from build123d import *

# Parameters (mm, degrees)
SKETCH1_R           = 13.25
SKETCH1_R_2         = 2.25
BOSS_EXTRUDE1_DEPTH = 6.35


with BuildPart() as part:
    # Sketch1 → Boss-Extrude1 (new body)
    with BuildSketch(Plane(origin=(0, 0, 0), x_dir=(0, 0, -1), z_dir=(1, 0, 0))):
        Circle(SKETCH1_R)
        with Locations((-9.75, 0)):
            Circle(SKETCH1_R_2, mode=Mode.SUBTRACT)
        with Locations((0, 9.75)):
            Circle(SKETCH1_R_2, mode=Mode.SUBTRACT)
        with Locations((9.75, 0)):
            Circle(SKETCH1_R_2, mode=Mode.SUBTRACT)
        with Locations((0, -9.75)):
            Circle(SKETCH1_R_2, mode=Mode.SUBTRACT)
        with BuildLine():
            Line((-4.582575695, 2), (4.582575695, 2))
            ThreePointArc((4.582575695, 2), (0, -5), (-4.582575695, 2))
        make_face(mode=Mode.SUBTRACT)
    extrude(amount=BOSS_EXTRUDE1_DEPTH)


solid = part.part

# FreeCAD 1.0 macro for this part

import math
import FreeCAD as App
import Part
import Sketcher
Q = App.Units.Quantity

doc = App.newDocument("Part")
body = doc.addObject("PartDesign::Body", "Body")

# Sketch on YZ plane
sketch1 = body.newObject("Sketcher::SketchObject", "Sketch")
sketch1.AttachmentSupport = (doc.getObject("YZ_Plane"), [""])
sketch1.MapMode = "FlatFace"
sketch1.addGeometry(Part.Circle(App.Vector(0, 0, 0), App.Vector(0, 0, 1), 13.2), False)
sketch1.addGeometry(Part.Circle(App.Vector(-9.8, 0, 0), App.Vector(0, 0, 1), 2.2), False)
sketch1.addGeometry(Part.ArcOfCircle(Part.Circle(App.Vector(0, 0, 0), App.Vector(0, 0, 1), 5), math.radians(66), math.radians(294)), False)
sketch1.addGeometry(Part.LineSegment(App.Vector(2, 4.6, 0), App.Vector(2, -4.6, 0)), False)
sketch1.addGeometry(Part.Circle(App.Vector(0, 9.8, 0), App.Vector(0, 0, 1), 2.2), False)
sketch1.addGeometry(Part.Circle(App.Vector(0, -9.8, 0), App.Vector(0, 0, 1), 2.2), False)
sketch1.addGeometry(Part.Circle(App.Vector(9.8, 0, 0), App.Vector(0, 0, 1), 2.2), False)
sketch1.addConstraint(Sketcher.Constraint("Coincident", 2, 1, 3, 1))
sketch1.addConstraint(Sketcher.Constraint("Coincident", 3, 2, 2, 2))
sketch1.addConstraint(Sketcher.Constraint("Vertical", 3))
sketch1.addConstraint(Sketcher.Constraint("Coincident", 0, 3, -1, 1))
sketch1.addConstraint(Sketcher.Constraint("Coincident", 2, 3, -1, 1))
sketch1.addConstraint(Sketcher.Constraint("Equal", 1, 4))
sketch1.addConstraint(Sketcher.Constraint("Equal", 4, 5))
sketch1.addConstraint(Sketcher.Constraint("Equal", 5, 6))
sketch1.addConstraint(Sketcher.Constraint("Symmetric", 4, 3, 5, 3, -1, 1))
sketch1.addConstraint(Sketcher.Constraint("Symmetric", 1, 3, 6, 3, -1, 1))
sketch1.addConstraint(Sketcher.Constraint("PointOnObject", 1, 3, -1))
sketch1.addConstraint(Sketcher.Constraint("PointOnObject", 4, 3, -2))
sketch1.addConstraint(Sketcher.Constraint("Radius", 2, Q("5 mm")))
sketch1.addConstraint(Sketcher.Constraint("Diameter", 0, Q("26.5 mm")))
sketch1.addConstraint(Sketcher.Constraint("Diameter", 1, Q("4.5 mm")))
sketch1.addConstraint(Sketcher.Constraint("DistanceX", -1, 1, 2, 1, Q("2 mm")))
sketch1.addConstraint(Sketcher.Constraint("DistanceY", 5, 3, 4, 3, Q("19.5 mm")))
sketch1.addConstraint(Sketcher.Constraint("DistanceX", 1, 3, 6, 3, Q("19.5 mm")))
pad1 = body.newObject("PartDesign::Pad", "Pad")
pad1.Profile = sketch1
pad1.Length = 6.35

doc.recompute()
